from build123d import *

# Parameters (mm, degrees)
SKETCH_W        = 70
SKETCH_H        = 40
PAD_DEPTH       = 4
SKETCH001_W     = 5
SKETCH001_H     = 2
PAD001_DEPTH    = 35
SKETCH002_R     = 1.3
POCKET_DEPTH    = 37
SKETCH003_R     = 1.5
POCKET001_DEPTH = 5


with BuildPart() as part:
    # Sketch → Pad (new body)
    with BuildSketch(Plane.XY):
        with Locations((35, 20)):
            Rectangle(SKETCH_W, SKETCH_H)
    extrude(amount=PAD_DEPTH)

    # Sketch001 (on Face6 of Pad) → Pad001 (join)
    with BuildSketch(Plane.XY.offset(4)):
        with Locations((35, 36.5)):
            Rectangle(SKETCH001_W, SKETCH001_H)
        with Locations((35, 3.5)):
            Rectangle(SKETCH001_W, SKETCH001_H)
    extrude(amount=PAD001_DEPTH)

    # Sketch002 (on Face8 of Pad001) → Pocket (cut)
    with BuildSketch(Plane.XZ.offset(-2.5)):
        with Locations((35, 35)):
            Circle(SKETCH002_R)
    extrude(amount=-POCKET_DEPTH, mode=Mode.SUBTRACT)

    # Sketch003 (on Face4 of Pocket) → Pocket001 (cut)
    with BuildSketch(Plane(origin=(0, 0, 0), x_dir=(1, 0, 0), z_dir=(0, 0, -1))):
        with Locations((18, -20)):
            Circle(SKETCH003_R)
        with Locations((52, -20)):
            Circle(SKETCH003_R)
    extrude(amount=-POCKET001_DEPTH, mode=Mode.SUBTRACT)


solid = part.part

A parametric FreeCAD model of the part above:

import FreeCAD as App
import Part
import Sketcher

V = App.Vector
Q = App.Units.Quantity

doc = App.newDocument("Part")
params = doc.addObject("Spreadsheet::Sheet", "Params")
for row, (alias, value) in enumerate([
    ("sketch1_width", "70 mm"),
    ("sketch1_height", "40 mm"),
    ("pad1_length", "4 mm"),
    ("sketch2_width", "5 mm"),
    ("sketch2_height", "2 mm"),
    ("pad2_length", "35 mm"),
    ("sketch3_diameter", "2.6 mm"),
    ("pocket1_length", "37 mm"),
    ("sketch4_diameter", "3 mm"),
    ("pocket2_length", "5 mm"),
], start=1):
    params.set(f"A{row}", alias)
    params.set(f"B{row}", "=" + value)
    params.setAlias(f"B{row}", alias)

body = doc.addObject("PartDesign::Body", "Body")

# Sketch on XY plane
sketch1 = doc.addObject("Sketcher::SketchObject", "Sketch")
body.addObject(sketch1)
sketch1.AttachmentSupport = (doc.XY_Plane, [""])
sketch1.MapMode = "FlatFace"
sketch1.addGeometry([
    Part.LineSegment(V(0, 40, 0), V(0, 0, 0)),
    Part.LineSegment(V(0, 0, 0), V(70, 0, 0)),
    Part.LineSegment(V(70, 0, 0), V(70, 40, 0)),
    Part.LineSegment(V(70, 40, 0), V(0, 40, 0)),
], False)
sketch1.addConstraint([
    Sketcher.Constraint("Coincident", 0, 2, 1, 1),
    Sketcher.Constraint("Coincident", 1, 2, 2, 1),
    Sketcher.Constraint("Coincident", 2, 2, 3, 1),
    Sketcher.Constraint("Coincident", 3, 2, 0, 1),
    Sketcher.Constraint("Vertical", 0),
    Sketcher.Constraint("Horizontal", 1),
    Sketcher.Constraint("Vertical", 2),
    Sketcher.Constraint("Horizontal", 3),
    Sketcher.Constraint("Coincident", 0, 2, -1, 1),
    Sketcher.Constraint("DistanceX", 1, 1, 1, 2, Q("70 mm")),
    Sketcher.Constraint("DistanceY", 0, 2, 0, 1, Q("40 mm")),
])
sketch1.setExpression("Constraints[9]", "Params.sketch1_width")
sketch1.setExpression("Constraints[10]", "Params.sketch1_height")
pad1 = doc.addObject("PartDesign::Pad", "Pad")
body.addObject(pad1)
pad1.Profile = sketch1
pad1.setExpression("Length", "Params.pad1_length")

# Sketch on XY plane
sketch2 = doc.addObject("Sketcher::SketchObject", "Sketch001")
body.addObject(sketch2)
sketch2.AttachmentSupport = (doc.XY_Plane, [""])
sketch2.MapMode = "FlatFace"
sketch2.AttachmentOffset = App.Placement(V(0, 0, 4), App.Rotation())
sketch2.addGeometry([
    Part.LineSegment(V(32.5, 37.5, 0), V(32.5, 35.5, 0)),  # 0
    Part.LineSegment(V(32.5, 35.5, 0), V(37.5, 35.5, 0)),  # 1
    Part.LineSegment(V(37.5, 35.5, 0), V(37.5, 37.5, 0)),  # 2
    Part.LineSegment(V(37.5, 37.5, 0), V(32.5, 37.5, 0)),  # 3
    Part.LineSegment(V(32.5, 4.5, 0), V(32.5, 2.5, 0)),  # 4
    Part.LineSegment(V(32.5, 2.5, 0), V(37.5, 2.5, 0)),  # 5
    Part.LineSegment(V(37.5, 2.5, 0), V(37.5, 4.5, 0)),  # 6
    Part.LineSegment(V(37.5, 4.5, 0), V(32.5, 4.5, 0)),  # 7
], False)
sketch2.addConstraint([
    Sketcher.Constraint("Coincident", 0, 2, 1, 1),
    Sketcher.Constraint("Coincident", 1, 2, 2, 1),
    Sketcher.Constraint("Coincident", 2, 2, 3, 1),
    Sketcher.Constraint("Coincident", 3, 2, 0, 1),
    Sketcher.Constraint("Coincident", 4, 2, 5, 1),
    Sketcher.Constraint("Coincident", 5, 2, 6, 1),
    Sketcher.Constraint("Coincident", 6, 2, 7, 1),
    Sketcher.Constraint("Coincident", 7, 2, 4, 1),
    Sketcher.Constraint("Vertical", 0),
    Sketcher.Constraint("Horizontal", 1),
    Sketcher.Constraint("Vertical", 2),
    Sketcher.Constraint("Horizontal", 3),
    Sketcher.Constraint("Vertical", 4),
    Sketcher.Constraint("Horizontal", 5),
    Sketcher.Constraint("Vertical", 6),
    Sketcher.Constraint("Horizontal", 7),
    Sketcher.Constraint("Vertical", 3, 2, 4, 2),
    Sketcher.Constraint("Vertical", 2, 2, 5, 2),
    Sketcher.Constraint("Equal", 2, 4),
    Sketcher.Constraint("DistanceX", 1, 1, 1, 2, Q("5 mm")),
    Sketcher.Constraint("DistanceY", 0, 2, 0, 1, Q("2 mm")),
    Sketcher.Constraint("DistanceY", 4, 2, 0, 2, Q("33 mm")),
    Sketcher.Constraint("DistanceX", -1, 1, 0, 2, Q("32.5 mm")),
    Sketcher.Constraint("DistanceY", -1, 1, 0, 2, Q("35.5 mm")),
])
sketch2.setExpression("Constraints[19]", "Params.sketch2_width")
sketch2.setExpression("Constraints[20]", "Params.sketch2_height")
pad2 = doc.addObject("PartDesign::Pad", "Pad001")
body.addObject(pad2)
pad2.Profile = sketch2
pad2.setExpression("Length", "Params.pad2_length")

# Sketch on XZ plane
sketch3 = doc.addObject("Sketcher::SketchObject", "Sketch002")
body.addObject(sketch3)
sketch3.AttachmentSupport = (doc.XZ_Plane, [""])
sketch3.MapMode = "FlatFace"
sketch3.AttachmentOffset = App.Placement(V(0, 0, -2.5), App.Rotation())
sketch3.addGeometry(Part.Circle(V(35, 35, 0), V(0, 0, 1), 1.3), False)
sketch3.addConstraint([
    Sketcher.Constraint("Diameter", 0, Q("2.6 mm")),
    Sketcher.Constraint("DistanceX", -1, 1, 0, 3, Q("35 mm")),
    Sketcher.Constraint("DistanceY", -1, 1, 0, 3, Q("35 mm")),
])
sketch3.setExpression("Constraints[0]", "Params.sketch3_diameter")
pocket1 = doc.addObject("PartDesign::Pocket", "Pocket")
body.addObject(pocket1)
pocket1.Profile = sketch3
pocket1.setExpression("Length", "Params.pocket1_length")

# Sketch on XY plane
sketch4 = doc.addObject("Sketcher::SketchObject", "Sketch003")
body.addObject(sketch4)
sketch4.AttachmentSupport = (doc.XY_Plane, [""])
sketch4.MapMode = "FlatFace"
sketch4.addGeometry([
    Part.Circle(V(18, 20, 0), V(0, 0, 1), 1.5),
    Part.Circle(V(52, 20, 0), V(0, 0, 1), 1.5),
], False)
sketch4.addConstraint([
    Sketcher.Constraint("Equal", 0, 1),
    Sketcher.Constraint("Horizontal", 0, 3, 1, 3),
    Sketcher.Constraint("Diameter", 0, Q("3 mm")),
    Sketcher.Constraint("DistanceX", -1, 1, 0, 3, Q("18 mm")),
    Sketcher.Constraint("DistanceY", -1, 1, 0, 3, Q("20 mm")),
    Sketcher.Constraint("DistanceX", -1, 1, 1, 3, Q("52 mm")),
])
sketch4.setExpression("Constraints[2]", "Params.sketch4_diameter")
pocket2 = doc.addObject("PartDesign::Pocket", "Pocket001")
body.addObject(pocket2)
pocket2.Profile = sketch4
pocket2.setExpression("Length", "Params.pocket2_length")
pocket2.Reversed = True

doc.recompute()
